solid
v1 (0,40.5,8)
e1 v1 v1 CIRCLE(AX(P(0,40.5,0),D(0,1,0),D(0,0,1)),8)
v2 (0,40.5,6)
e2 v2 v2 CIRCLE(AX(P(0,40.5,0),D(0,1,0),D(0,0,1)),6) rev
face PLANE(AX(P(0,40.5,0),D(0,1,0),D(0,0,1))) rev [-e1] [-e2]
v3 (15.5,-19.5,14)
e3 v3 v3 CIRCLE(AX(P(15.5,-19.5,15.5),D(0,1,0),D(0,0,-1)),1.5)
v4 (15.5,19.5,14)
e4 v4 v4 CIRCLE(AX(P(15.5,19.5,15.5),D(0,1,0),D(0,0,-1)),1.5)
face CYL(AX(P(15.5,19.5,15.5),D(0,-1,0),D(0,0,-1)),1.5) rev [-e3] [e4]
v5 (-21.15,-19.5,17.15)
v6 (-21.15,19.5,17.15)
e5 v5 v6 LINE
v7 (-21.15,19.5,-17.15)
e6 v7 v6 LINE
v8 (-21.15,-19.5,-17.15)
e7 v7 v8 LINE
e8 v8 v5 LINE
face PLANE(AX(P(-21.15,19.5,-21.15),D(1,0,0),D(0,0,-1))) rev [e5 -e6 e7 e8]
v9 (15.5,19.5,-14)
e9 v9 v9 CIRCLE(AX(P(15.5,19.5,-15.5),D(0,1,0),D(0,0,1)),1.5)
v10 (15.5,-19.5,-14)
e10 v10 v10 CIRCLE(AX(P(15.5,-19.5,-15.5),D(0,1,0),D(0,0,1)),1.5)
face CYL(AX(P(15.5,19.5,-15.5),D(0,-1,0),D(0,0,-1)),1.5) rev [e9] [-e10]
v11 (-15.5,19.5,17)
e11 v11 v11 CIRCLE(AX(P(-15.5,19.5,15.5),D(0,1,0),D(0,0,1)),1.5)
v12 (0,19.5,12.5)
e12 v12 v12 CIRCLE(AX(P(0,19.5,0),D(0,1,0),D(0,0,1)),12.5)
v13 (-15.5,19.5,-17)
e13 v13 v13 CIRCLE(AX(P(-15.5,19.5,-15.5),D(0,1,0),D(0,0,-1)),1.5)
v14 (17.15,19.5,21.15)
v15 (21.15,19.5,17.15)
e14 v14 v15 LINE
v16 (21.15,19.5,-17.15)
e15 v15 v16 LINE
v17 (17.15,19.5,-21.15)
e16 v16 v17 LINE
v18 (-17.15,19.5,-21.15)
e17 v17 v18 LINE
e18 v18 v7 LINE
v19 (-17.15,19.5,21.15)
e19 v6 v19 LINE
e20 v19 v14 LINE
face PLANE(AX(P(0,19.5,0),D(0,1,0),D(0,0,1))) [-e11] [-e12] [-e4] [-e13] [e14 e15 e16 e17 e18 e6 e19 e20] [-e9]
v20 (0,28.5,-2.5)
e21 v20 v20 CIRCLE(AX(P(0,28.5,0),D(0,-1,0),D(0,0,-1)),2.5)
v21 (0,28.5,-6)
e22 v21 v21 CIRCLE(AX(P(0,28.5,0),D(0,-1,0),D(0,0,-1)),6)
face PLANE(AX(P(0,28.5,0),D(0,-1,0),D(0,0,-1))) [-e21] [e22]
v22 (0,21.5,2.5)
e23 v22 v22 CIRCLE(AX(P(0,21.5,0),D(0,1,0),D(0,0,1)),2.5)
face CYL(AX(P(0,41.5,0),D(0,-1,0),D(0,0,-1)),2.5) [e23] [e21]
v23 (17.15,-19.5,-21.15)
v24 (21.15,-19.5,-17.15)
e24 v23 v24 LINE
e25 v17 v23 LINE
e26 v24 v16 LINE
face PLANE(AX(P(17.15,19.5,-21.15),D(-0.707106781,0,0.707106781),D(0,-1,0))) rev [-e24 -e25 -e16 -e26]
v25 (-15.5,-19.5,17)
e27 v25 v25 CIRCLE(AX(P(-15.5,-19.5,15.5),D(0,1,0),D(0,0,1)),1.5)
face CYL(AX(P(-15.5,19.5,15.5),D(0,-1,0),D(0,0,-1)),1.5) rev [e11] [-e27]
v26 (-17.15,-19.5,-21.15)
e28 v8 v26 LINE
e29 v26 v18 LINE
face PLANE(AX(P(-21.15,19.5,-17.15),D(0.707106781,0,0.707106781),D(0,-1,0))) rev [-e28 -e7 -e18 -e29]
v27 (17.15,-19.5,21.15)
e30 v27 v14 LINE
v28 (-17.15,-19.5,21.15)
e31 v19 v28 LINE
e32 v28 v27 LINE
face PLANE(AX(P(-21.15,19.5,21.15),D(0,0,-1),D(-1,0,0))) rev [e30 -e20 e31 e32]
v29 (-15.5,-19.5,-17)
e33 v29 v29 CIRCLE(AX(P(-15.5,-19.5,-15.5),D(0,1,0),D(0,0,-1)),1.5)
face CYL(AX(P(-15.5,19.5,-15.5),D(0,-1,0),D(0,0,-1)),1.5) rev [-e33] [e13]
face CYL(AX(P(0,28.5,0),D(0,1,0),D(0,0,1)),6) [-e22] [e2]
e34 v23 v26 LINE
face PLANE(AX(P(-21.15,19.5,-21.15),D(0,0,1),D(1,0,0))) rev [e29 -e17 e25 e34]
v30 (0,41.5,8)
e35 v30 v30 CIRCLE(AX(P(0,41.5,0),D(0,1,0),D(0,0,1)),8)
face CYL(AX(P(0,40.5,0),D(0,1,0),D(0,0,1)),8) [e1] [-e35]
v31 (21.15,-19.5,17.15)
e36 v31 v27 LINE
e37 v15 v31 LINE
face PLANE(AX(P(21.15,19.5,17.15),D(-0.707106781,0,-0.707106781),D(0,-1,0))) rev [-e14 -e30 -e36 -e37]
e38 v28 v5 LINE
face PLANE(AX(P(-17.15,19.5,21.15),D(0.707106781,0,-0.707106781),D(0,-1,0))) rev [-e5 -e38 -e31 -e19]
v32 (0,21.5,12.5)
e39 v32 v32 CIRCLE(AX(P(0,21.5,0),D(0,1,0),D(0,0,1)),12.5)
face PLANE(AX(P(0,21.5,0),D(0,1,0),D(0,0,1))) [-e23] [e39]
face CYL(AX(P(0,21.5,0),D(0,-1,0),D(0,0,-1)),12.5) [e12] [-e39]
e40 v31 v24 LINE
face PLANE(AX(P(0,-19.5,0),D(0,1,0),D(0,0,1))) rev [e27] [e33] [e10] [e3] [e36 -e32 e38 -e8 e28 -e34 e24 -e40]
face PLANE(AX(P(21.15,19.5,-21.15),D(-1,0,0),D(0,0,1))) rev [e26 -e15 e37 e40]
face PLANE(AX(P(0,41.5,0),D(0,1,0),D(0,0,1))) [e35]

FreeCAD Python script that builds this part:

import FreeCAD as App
import Part
import Sketcher

V = App.Vector
Q = App.Units.Quantity


def edges_at(feature, points):
    """Names of the edges that pass closest to the given points."""
    edges = feature.Shape.Edges
    near = lambda p: min(range(len(edges)), key=lambda i: edges[i].distToShape(Part.Vertex(*p))[0])
    return sorted({f"Edge{near(p) + 1}" for p in points})


def add_polygon(sketch, points):
    """Adds a closed chain of lines whose ends are joined by coincident constraints."""
    first, n = sketch.GeometryCount, len(points)
    for a, b in zip(points, points[1:] + points[:1]):
        sketch.addGeometry(Part.LineSegment(App.Vector(*a, 0), App.Vector(*b, 0)), False)
    for i in range(n):
        sketch.addConstraint(Sketcher.Constraint("Coincident", first + i, 2, first + (i + 1) % n, 1))

doc = App.newDocument("Part")
body = doc.addObject("PartDesign::Body", "Body")

# Sketch on XZ plane
sketch1 = body.newObject("Sketcher::SketchObject", "Sketch")
sketch1.AttachmentSupport = (doc.getObject("XZ_Plane"), [""])
sketch1.MapMode = "FlatFace"
add_polygon(sketch1, [(-21.15, -21.15), (-21.15, 21.15), (21.15, 21.15), (21.15, -21.15)])  # lines 0-3
sketch1.addGeometry(Part.Circle(V(-15.5, 15.5, 0), V(0, 0, 1), 1.5), False)  # 4
sketch1.addGeometry(Part.Circle(V(15.5, 15.5, 0), V(0, 0, 1), 1.5), False)  # 5
sketch1.addGeometry(Part.Circle(V(-15.5, -15.5, 0), V(0, 0, 1), 1.5), False)  # 6
sketch1.addGeometry(Part.Circle(V(15.5, -15.5, 0), V(0, 0, 1), 1.5), False)  # 7
sketch1.addConstraint(Sketcher.Constraint("Vertical", 0))
sketch1.addConstraint(Sketcher.Constraint("Horizontal", 1))
sketch1.addConstraint(Sketcher.Constraint("Vertical", 2))
sketch1.addConstraint(Sketcher.Constraint("Horizontal", 3))
sketch1.addConstraint(Sketcher.Constraint("Equal", 4, 5))
sketch1.addConstraint(Sketcher.Constraint("Equal", 5, 6))
sketch1.addConstraint(Sketcher.Constraint("Equal", 6, 7))
sketch1.addConstraint(Sketcher.Constraint("Symmetric", 5, 3, 6, 3, -1, 1))
sketch1.addConstraint(Sketcher.Constraint("Symmetric", 4, 3, 7, 3, -1, 1))
sketch1.addConstraint(Sketcher.Constraint("Symmetric", 0, 2, 2, 2, -1, 1))
sketch1.addConstraint(Sketcher.Constraint("Symmetric", 4, 3, 5, 3, -2))
sketch1.addConstraint(Sketcher.Constraint("Equal", 3, 0))
sketch1.addConstraint(Sketcher.Constraint("Diameter", 4, Q("3 mm")))
sketch1.addConstraint(Sketcher.Constraint("DistanceX", 1, 1, 1, 2, Q("42.3 mm")))
sketch1.addConstraint(Sketcher.Constraint("DistanceX", 4, 3, 5, 3, Q("31 mm")))
sketch1.addConstraint(Sketcher.Constraint("DistanceY", 6, 3, 4, 3, Q("31 mm")))
pad1 = body.newObject("PartDesign::Pad", "Pad")
pad1.Profile = sketch1
pad1.Length = 39
pad1.Midplane = True

# Sketch on XZ plane
sketch2 = body.newObject("Sketcher::SketchObject", "Sketch001")
sketch2.AttachmentSupport = (doc.getObject("XZ_Plane"), [""])
sketch2.MapMode = "FlatFace"
sketch2.AttachmentOffset = App.Placement(V(0, 0, -19.5), App.Rotation())
sketch2.addGeometry(Part.Circle(V(0, 0, 0), V(0, 0, 1), 12.5), False)
sketch2.addConstraint(Sketcher.Constraint("Coincident", 0, 3, -1, 1))
sketch2.addConstraint(Sketcher.Constraint("Diameter", 0, Q("25 mm")))
pad2 = body.newObject("PartDesign::Pad", "Pad001")
pad2.Profile = sketch2
pad2.Length = 2
pad2.Reversed = True

# Sketch on XZ plane
sketch3 = body.newObject("Sketcher::SketchObject", "Sketch002")
sketch3.AttachmentSupport = (doc.getObject("XZ_Plane"), [""])
sketch3.MapMode = "FlatFace"
sketch3.AttachmentOffset = App.Placement(V(0, 0, -21.5), App.Rotation())
sketch3.addGeometry(Part.Circle(V(0, 0, 0), V(0, 0, 1), 2.5), False)
sketch3.addConstraint(Sketcher.Constraint("Coincident", 0, 3, -1, 1))
sketch3.addConstraint(Sketcher.Constraint("Diameter", 0, Q("5 mm")))
pad3 = body.newObject("PartDesign::Pad", "Pad002")
pad3.Profile = sketch3
pad3.Length = 20
pad3.Reversed = True

# Sketch on XZ plane
sketch4 = body.newObject("Sketcher::SketchObject", "Sketch003")
sketch4.AttachmentSupport = (doc.getObject("XZ_Plane"), [""])
sketch4.MapMode = "FlatFace"
sketch4.AttachmentOffset = App.Placement(V(0, 0, -41.5), App.Rotation())
sketch4.addGeometry(Part.Circle(V(0, 0, 0), V(0, 0, 1), 8), False)
sketch4.addConstraint(Sketcher.Constraint("Coincident", 0, 3, -1, 1))
sketch4.addConstraint(Sketcher.Constraint("Diameter", 0, Q("16 mm")))
pad4 = body.newObject("PartDesign::Pad", "Pad003")
pad4.Profile = sketch4
pad4.Length = 1

# Sketch on XZ plane
sketch5 = body.newObject("Sketcher::SketchObject", "Sketch004")
sketch5.AttachmentSupport = (doc.getObject("XZ_Plane"), [""])
sketch5.MapMode = "FlatFace"
sketch5.AttachmentOffset = App.Placement(V(0, 0, -40.5), App.Rotation())
sketch5.addGeometry(Part.Circle(V(0, 0, 0), V(0, 0, 1), 6), False)
sketch5.addConstraint(Sketcher.Constraint("Coincident", 0, 3, -1, 1))
sketch5.addConstraint(Sketcher.Constraint("Diameter", 0, Q("12 mm")))
pad5 = body.newObject("PartDesign::Pad", "Pad004")
pad5.Profile = sketch5
pad5.Length = 12
doc.recompute()

chamfer = body.newObject("PartDesign::Chamfer", "Chamfer")
chamfer.Base = (pad5, edges_at(pad5, [
    (21.15, 0, 21.15),
    (-21.15, 0, 21.15),
    (-21.15, 0, -21.15),
    (21.15, 0, -21.15),
]))
chamfer.Size = 4

doc.recompute()
